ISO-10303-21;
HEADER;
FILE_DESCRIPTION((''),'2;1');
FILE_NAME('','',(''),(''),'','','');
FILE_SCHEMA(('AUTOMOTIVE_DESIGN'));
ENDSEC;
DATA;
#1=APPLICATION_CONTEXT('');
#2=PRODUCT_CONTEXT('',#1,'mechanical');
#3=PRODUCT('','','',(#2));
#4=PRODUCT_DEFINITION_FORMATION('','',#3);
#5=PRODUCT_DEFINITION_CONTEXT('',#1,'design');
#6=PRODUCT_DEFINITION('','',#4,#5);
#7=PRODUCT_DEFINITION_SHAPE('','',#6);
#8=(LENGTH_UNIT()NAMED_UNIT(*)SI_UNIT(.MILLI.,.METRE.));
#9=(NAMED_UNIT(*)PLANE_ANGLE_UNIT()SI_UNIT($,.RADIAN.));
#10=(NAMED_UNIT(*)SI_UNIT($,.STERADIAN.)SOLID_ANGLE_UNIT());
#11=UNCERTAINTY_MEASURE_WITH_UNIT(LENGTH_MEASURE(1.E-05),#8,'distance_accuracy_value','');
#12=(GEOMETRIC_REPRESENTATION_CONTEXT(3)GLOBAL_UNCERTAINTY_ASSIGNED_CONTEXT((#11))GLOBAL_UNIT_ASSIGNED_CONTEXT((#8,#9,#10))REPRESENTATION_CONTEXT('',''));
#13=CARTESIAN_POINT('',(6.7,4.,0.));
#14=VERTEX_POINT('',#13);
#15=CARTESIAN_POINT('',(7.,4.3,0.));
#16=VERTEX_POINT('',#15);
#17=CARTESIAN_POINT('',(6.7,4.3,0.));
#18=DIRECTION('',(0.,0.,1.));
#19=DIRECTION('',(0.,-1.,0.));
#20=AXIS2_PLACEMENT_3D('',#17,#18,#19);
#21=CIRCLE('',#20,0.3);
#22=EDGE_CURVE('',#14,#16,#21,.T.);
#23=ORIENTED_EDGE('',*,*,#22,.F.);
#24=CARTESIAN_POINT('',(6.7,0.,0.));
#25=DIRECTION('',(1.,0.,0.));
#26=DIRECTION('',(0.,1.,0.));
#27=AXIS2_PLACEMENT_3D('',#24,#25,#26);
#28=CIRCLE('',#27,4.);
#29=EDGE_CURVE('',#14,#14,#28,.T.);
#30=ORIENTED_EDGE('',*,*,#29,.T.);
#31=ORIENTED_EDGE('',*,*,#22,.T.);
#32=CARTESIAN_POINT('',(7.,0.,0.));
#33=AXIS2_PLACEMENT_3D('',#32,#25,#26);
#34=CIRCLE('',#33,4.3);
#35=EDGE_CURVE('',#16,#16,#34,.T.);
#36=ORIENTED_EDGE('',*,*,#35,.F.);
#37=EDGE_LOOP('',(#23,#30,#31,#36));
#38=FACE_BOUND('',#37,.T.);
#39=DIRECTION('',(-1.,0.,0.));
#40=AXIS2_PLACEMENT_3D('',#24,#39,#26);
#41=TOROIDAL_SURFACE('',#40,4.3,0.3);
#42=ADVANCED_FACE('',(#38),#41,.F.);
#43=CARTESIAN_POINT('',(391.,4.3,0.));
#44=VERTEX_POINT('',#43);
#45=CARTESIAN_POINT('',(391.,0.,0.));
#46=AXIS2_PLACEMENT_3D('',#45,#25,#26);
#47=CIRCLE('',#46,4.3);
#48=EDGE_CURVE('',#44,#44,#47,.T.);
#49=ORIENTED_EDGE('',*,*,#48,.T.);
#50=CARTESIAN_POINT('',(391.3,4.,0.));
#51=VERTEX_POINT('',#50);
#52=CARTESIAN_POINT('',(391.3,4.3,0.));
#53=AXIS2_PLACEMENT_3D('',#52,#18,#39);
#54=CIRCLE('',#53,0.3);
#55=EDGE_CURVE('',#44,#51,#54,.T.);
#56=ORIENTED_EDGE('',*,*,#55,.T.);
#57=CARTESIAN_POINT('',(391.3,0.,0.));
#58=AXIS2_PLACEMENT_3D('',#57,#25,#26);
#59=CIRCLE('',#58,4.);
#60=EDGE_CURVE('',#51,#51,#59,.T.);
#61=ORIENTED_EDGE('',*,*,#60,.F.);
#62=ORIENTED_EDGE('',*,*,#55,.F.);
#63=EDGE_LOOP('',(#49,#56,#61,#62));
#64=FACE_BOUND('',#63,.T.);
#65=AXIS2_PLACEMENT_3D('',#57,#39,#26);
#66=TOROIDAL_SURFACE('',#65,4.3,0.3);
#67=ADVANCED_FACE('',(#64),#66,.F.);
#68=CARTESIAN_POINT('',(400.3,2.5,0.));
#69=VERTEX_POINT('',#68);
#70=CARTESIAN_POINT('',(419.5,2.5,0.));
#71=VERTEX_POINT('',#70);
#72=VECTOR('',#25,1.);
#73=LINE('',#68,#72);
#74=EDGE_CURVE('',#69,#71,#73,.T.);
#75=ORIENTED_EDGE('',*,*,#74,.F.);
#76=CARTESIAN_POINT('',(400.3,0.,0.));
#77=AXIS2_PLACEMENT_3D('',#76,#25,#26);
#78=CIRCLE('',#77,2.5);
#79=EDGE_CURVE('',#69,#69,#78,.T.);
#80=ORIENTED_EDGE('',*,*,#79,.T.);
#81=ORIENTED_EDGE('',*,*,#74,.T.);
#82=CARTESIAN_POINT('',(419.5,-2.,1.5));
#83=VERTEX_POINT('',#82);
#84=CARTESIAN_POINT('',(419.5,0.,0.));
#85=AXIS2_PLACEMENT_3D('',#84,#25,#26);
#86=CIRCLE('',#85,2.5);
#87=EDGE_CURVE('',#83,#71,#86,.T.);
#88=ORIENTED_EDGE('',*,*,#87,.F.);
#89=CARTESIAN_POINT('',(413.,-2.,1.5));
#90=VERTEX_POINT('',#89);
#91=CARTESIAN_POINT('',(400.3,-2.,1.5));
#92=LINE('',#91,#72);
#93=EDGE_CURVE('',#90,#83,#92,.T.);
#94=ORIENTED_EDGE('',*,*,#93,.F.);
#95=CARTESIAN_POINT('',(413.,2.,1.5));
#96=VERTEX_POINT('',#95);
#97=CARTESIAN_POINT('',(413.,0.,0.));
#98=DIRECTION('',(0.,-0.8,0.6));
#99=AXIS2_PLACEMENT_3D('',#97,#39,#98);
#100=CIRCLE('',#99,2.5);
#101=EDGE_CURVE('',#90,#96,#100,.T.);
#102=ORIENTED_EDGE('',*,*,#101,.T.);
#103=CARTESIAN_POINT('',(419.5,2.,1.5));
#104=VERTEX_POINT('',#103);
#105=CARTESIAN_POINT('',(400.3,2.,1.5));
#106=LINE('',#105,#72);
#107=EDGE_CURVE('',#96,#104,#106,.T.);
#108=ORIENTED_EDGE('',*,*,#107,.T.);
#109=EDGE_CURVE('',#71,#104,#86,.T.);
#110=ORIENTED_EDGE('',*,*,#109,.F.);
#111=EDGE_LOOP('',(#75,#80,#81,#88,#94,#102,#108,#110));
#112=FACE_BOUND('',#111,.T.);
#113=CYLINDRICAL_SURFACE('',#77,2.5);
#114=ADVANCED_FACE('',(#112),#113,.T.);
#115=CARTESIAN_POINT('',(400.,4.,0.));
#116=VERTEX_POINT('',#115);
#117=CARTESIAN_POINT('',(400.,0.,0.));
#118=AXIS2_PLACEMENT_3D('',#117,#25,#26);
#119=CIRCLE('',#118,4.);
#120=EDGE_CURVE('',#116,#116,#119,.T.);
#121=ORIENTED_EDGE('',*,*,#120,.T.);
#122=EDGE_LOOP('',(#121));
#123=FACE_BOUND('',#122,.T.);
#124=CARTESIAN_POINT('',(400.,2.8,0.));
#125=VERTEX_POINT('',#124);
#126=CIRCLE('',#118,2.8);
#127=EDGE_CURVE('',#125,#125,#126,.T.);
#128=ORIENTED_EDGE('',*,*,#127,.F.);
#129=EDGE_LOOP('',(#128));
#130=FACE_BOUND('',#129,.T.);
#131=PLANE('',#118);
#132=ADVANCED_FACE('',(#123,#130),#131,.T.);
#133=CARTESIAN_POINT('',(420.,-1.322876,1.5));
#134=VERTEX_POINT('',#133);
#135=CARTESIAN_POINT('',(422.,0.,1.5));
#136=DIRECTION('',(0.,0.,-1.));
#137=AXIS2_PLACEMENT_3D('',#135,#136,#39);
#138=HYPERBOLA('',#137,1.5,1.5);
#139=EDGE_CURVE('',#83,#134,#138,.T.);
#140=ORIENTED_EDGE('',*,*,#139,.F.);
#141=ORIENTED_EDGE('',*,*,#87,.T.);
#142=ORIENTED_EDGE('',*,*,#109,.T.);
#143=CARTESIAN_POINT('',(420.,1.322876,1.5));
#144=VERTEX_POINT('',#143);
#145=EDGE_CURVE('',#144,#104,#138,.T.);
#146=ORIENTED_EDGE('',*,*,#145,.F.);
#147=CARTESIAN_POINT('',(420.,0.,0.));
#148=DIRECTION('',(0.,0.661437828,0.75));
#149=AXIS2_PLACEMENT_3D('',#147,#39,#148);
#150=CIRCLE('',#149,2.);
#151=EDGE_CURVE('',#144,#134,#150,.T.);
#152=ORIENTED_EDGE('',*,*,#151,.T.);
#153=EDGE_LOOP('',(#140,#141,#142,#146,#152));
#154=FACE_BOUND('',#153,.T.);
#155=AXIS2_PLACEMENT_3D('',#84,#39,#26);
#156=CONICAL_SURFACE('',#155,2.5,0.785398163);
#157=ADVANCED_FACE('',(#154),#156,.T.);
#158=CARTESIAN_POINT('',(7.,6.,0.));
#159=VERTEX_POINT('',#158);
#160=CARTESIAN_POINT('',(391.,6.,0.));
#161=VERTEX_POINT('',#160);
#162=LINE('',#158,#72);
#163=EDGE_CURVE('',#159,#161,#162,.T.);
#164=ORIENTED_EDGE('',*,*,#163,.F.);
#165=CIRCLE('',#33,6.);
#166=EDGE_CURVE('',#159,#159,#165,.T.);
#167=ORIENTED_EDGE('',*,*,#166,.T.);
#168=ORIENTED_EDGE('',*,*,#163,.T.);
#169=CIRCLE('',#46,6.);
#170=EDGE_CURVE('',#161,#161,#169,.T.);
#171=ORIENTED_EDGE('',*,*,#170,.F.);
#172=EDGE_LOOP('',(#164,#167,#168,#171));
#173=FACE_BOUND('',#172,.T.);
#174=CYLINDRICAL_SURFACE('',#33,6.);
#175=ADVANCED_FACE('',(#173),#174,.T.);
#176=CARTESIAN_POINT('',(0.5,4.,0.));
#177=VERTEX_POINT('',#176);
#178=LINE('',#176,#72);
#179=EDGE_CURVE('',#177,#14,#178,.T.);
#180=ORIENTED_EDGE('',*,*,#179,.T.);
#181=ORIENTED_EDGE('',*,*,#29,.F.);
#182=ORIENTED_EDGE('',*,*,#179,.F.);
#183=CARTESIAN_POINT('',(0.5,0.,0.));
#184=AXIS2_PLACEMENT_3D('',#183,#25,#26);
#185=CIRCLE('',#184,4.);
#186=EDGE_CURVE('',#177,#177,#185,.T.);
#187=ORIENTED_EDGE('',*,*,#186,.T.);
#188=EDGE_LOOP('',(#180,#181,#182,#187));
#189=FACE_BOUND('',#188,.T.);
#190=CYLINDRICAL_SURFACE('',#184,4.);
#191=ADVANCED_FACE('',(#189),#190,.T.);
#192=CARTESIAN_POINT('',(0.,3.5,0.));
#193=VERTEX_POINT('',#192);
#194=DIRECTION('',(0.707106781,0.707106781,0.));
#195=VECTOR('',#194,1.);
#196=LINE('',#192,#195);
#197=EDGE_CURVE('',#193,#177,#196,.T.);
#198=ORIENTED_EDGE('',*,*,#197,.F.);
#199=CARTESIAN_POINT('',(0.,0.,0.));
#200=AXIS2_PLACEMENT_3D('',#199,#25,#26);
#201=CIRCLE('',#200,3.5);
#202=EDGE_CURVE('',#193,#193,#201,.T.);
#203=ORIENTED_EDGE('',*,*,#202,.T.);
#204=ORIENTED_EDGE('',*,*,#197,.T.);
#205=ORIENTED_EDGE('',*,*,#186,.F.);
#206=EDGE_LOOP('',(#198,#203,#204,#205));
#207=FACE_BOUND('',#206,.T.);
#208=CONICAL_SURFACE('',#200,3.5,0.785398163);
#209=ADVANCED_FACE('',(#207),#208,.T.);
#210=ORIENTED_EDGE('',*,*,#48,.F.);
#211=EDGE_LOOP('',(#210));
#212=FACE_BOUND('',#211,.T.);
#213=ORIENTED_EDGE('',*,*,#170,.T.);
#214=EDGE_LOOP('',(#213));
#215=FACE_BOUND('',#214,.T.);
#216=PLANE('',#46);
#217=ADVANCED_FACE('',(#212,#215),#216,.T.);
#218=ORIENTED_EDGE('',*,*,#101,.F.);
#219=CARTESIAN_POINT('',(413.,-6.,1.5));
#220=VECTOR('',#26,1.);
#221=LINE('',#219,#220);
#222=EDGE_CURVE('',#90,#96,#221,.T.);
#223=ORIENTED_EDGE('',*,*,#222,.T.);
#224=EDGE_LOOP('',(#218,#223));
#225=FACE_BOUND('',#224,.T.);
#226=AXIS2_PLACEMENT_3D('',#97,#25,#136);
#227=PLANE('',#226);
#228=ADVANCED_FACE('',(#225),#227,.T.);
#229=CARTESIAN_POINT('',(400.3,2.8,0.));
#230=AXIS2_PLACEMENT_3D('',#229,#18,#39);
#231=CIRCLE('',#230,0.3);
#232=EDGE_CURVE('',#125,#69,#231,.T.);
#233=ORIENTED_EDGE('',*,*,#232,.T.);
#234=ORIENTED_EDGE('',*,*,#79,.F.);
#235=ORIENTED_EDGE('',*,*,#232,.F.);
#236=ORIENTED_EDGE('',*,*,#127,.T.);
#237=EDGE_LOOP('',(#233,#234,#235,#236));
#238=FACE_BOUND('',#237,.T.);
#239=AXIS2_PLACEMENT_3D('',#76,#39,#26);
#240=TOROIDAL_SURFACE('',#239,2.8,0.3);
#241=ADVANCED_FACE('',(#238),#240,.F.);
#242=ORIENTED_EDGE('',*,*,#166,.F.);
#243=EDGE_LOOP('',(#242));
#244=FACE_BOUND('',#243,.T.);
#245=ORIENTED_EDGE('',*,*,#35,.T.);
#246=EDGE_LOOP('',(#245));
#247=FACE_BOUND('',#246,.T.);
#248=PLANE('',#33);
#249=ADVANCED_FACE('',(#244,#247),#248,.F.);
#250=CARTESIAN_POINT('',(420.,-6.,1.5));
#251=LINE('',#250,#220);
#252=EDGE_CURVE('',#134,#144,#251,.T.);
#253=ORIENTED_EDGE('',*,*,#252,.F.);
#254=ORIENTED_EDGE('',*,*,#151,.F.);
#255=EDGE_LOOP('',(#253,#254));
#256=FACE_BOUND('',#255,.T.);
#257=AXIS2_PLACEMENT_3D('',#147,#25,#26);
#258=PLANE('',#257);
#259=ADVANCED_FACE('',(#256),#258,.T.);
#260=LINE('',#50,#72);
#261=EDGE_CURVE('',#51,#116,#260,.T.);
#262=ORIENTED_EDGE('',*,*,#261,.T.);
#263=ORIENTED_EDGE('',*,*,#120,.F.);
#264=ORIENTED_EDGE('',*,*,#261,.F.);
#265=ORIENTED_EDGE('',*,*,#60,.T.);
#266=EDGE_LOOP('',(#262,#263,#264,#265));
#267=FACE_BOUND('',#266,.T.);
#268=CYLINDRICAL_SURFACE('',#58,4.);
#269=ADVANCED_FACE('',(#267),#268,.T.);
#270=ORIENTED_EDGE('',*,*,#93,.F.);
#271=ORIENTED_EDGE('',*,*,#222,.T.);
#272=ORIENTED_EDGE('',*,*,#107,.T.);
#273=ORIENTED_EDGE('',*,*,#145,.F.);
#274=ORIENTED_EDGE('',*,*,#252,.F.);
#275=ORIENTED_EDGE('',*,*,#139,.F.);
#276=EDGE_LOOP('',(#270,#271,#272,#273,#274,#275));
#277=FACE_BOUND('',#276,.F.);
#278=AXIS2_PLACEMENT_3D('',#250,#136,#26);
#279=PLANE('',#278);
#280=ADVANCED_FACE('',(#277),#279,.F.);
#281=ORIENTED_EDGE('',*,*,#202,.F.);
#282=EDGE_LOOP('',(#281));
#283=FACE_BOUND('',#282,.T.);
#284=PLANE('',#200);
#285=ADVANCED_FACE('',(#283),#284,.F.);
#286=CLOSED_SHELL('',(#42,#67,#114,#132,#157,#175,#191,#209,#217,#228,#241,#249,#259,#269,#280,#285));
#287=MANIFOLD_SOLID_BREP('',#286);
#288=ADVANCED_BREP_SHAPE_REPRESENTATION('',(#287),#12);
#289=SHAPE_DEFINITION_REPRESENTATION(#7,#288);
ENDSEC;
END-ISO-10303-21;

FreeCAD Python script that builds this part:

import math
import FreeCAD as App
import Part
import Sketcher
Q = App.Units.Quantity

doc = App.newDocument("Part")
body = doc.addObject("PartDesign::Body", "Body")

sketch1 = body.newObject("Sketcher::SketchObject", "Sketch")
sketch1.AttachmentSupport = (doc.getObject("XY_Plane"), [""])
sketch1.MapMode = "FlatFace"
sketch1.addGeometry([
    Part.LineSegment(App.Vector(7, 0, 0), App.Vector(391, 0, 0)),
    Part.LineSegment(App.Vector(391, 0, 0), App.Vector(391, 6, 0)),
    Part.LineSegment(App.Vector(391, 6, 0), App.Vector(7, 6, 0)),
    Part.LineSegment(App.Vector(7, 6, 0), App.Vector(7, 0, 0)),
], False)
sketch1.addConstraint([
    Sketcher.Constraint("Coincident", 0, 2, 1, 1),
    Sketcher.Constraint("Coincident", 1, 2, 2, 1),
    Sketcher.Constraint("Coincident", 2, 2, 3, 1),
    Sketcher.Constraint("Coincident", 3, 2, 0, 1),
    Sketcher.Constraint("Horizontal", 0),
    Sketcher.Constraint("Vertical", 1),
    Sketcher.Constraint("Horizontal", 2),
    Sketcher.Constraint("Vertical", 3),
    Sketcher.Constraint("PointOnObject", 0, 2, -1),
    Sketcher.Constraint("DistanceX", 0, 1, 0, 2, Q("384 mm")),
    Sketcher.Constraint("DistanceY", 1, 1, 1, 2, Q("6 mm")),
    Sketcher.Constraint("DistanceX", -1, 1, 0, 2, Q("391 mm")),
])
revolution = body.newObject("PartDesign::Revolution", "Revolution")
revolution.Profile = sketch1
revolution.ReferenceAxis = (sketch1, ["H_Axis"])
revolution.Angle = 360

sketch2 = body.newObject("Sketcher::SketchObject", "Sketch001")
sketch2.AttachmentSupport = (doc.getObject("XY_Plane"), [""])
sketch2.MapMode = "FlatFace"
sketch2.addGeometry([
    Part.LineSegment(App.Vector(0, 0, 0), App.Vector(7, 0, 0)),
    Part.LineSegment(App.Vector(7, 0, 0), App.Vector(7, 4.3, 0)),
    Part.ArcOfCircle(Part.Circle(App.Vector(6.7, 4.3, 0), App.Vector(0, 0, 1), 0.3), math.radians(-90), math.radians(0)),
    Part.LineSegment(App.Vector(6.7, 4, 0), App.Vector(0.5, 4, 0)),
    Part.LineSegment(App.Vector(0.5, 4, 0), App.Vector(0, 3.5, 0)),
    Part.LineSegment(App.Vector(0, 3.5, 0), App.Vector(0, 0, 0)),
], False)
sketch2.addConstraint([
    Sketcher.Constraint("Coincident", 0, 2, 1, 1),
    Sketcher.Constraint("Tangent", 1, 2, 2, 2),
    Sketcher.Constraint("Tangent", 2, 1, 3, 1),
    Sketcher.Constraint("Coincident", 3, 2, 4, 1),
    Sketcher.Constraint("Coincident", 4, 2, 5, 1),
    Sketcher.Constraint("Coincident", 5, 2, 0, 1),
    Sketcher.Constraint("Horizontal", 0),
    Sketcher.Constraint("Vertical", 1),
    Sketcher.Constraint("Horizontal", 3),
    Sketcher.Constraint("Vertical", 5),
    Sketcher.Constraint("Coincident", 5, 2, -1, 1),
    Sketcher.Constraint("Radius", 2, Q("0.3 mm")),
    Sketcher.Constraint("DistanceX", 0, 1, 0, 2, Q("7 mm")),
    Sketcher.Constraint("Angle", 4, Q("-135 deg")),
    Sketcher.Constraint("DistanceX", 3, 2, 3, 1, Q("6.2 mm")),
    Sketcher.Constraint("DistanceY", 1, 1, 1, 2, Q("4.3 mm")),
])
revolution2 = body.newObject("PartDesign::Revolution", "Revolution001")
revolution2.Profile = sketch2
revolution2.ReferenceAxis = (sketch2, ["H_Axis"])
revolution2.Angle = 360

sketch3 = body.newObject("Sketcher::SketchObject", "Sketch002")
sketch3.AttachmentSupport = (doc.getObject("XY_Plane"), [""])
sketch3.MapMode = "FlatFace"
sketch3.addGeometry([
    Part.LineSegment(App.Vector(391, 0, 0), App.Vector(420, 0, 0)),
    Part.LineSegment(App.Vector(420, 0, 0), App.Vector(420, 2, 0)),
    Part.LineSegment(App.Vector(420, 2, 0), App.Vector(419.5, 2.5, 0)),
    Part.LineSegment(App.Vector(419.5, 2.5, 0), App.Vector(400.3, 2.5, 0)),
    Part.ArcOfCircle(Part.Circle(App.Vector(400.3, 2.8, 0), App.Vector(0, 0, 1), 0.3), math.radians(180), math.radians(270)),
    Part.LineSegment(App.Vector(400, 2.8, 0), App.Vector(400, 4, 0)),
    Part.LineSegment(App.Vector(400, 4, 0), App.Vector(391.3, 4, 0)),
    Part.ArcOfCircle(Part.Circle(App.Vector(391.3, 4.3, 0), App.Vector(0, 0, 1), 0.3), math.radians(180), math.radians(270)),
    Part.LineSegment(App.Vector(391, 4.3, 0), App.Vector(391, 0, 0)),
], False)
sketch3.addConstraint([
    Sketcher.Constraint("Coincident", 0, 2, 1, 1),
    Sketcher.Constraint("Coincident", 1, 2, 2, 1),
    Sketcher.Constraint("Coincident", 2, 2, 3, 1),
    Sketcher.Constraint("Tangent", 3, 2, 4, 2),
    Sketcher.Constraint("Tangent", 4, 1, 5, 1),
    Sketcher.Constraint("Coincident", 5, 2, 6, 1),
    Sketcher.Constraint("Tangent", 6, 2, 7, 2),
    Sketcher.Constraint("Tangent", 7, 1, 8, 1),
    Sketcher.Constraint("Coincident", 8, 2, 0, 1),
    Sketcher.Constraint("Horizontal", 0),
    Sketcher.Constraint("Vertical", 1),
    Sketcher.Constraint("Horizontal", 3),
    Sketcher.Constraint("Vertical", 5),
    Sketcher.Constraint("Horizontal", 6),
    Sketcher.Constraint("Vertical", 8),
    Sketcher.Constraint("Equal", 4, 7),
    Sketcher.Constraint("PointOnObject", 0, 2, -1),
    Sketcher.Constraint("Radius", 4, Q("0.3 mm")),
    Sketcher.Constraint("DistanceX", 0, 1, 0, 2, Q("29 mm")),
    Sketcher.Constraint("DistanceY", 1, 1, 1, 2, Q("2 mm")),
    Sketcher.Constraint("Angle", 2, Q("135 deg")),
    Sketcher.Constraint("DistanceX", 3, 2, 3, 1, Q("19.2 mm")),
    Sketcher.Constraint("DistanceX", 6, 2, 6, 1, Q("8.7 mm")),
    Sketcher.Constraint("DistanceY", 5, 1, 5, 2, Q("1.2 mm")),
    Sketcher.Constraint("DistanceX", -1, 1, 0, 2, Q("420 mm")),
])
revolution3 = body.newObject("PartDesign::Revolution", "Revolution002")
revolution3.Profile = sketch3
revolution3.ReferenceAxis = (sketch3, ["H_Axis"])
revolution3.Angle = 360

sketch4 = body.newObject("Sketcher::SketchObject", "Sketch003")
sketch4.AttachmentSupport = (doc.getObject("YZ_Plane"), [""])
sketch4.MapMode = "FlatFace"
sketch4.AttachmentOffset = App.Placement(App.Vector(0, 0, 420), App.Rotation())
sketch4.addGeometry([
    Part.LineSegment(App.Vector(6, 2.5, 0), App.Vector(-6, 2.5, 0)),
    Part.LineSegment(App.Vector(-6, 2.5, 0), App.Vector(-6, 1.5, 0)),
    Part.LineSegment(App.Vector(-6, 1.5, 0), App.Vector(6, 1.5, 0)),
    Part.LineSegment(App.Vector(6, 1.5, 0), App.Vector(6, 2.5, 0)),
], False)
sketch4.addConstraint([
    Sketcher.Constraint("Coincident", 0, 2, 1, 1),
    Sketcher.Constraint("Coincident", 1, 2, 2, 1),
    Sketcher.Constraint("Coincident", 2, 2, 3, 1),
    Sketcher.Constraint("Coincident", 3, 2, 0, 1),
    Sketcher.Constraint("Horizontal", 0),
    Sketcher.Constraint("Vertical", 1),
    Sketcher.Constraint("Horizontal", 2),
    Sketcher.Constraint("Vertical", 3),
    Sketcher.Constraint("DistanceX", 0, 2, 0, 1, Q("12 mm")),
    Sketcher.Constraint("DistanceY", 1, 2, 1, 1, Q("1 mm")),
    Sketcher.Constraint("DistanceX", 0, 2, -1, 1, Q("6 mm")),
    Sketcher.Constraint("DistanceY", -1, 1, 0, 2, Q("2.5 mm")),
])
pocket1 = body.newObject("PartDesign::Pocket", "Pocket")
pocket1.Profile = sketch4
pocket1.Length = 7

doc.recompute()
